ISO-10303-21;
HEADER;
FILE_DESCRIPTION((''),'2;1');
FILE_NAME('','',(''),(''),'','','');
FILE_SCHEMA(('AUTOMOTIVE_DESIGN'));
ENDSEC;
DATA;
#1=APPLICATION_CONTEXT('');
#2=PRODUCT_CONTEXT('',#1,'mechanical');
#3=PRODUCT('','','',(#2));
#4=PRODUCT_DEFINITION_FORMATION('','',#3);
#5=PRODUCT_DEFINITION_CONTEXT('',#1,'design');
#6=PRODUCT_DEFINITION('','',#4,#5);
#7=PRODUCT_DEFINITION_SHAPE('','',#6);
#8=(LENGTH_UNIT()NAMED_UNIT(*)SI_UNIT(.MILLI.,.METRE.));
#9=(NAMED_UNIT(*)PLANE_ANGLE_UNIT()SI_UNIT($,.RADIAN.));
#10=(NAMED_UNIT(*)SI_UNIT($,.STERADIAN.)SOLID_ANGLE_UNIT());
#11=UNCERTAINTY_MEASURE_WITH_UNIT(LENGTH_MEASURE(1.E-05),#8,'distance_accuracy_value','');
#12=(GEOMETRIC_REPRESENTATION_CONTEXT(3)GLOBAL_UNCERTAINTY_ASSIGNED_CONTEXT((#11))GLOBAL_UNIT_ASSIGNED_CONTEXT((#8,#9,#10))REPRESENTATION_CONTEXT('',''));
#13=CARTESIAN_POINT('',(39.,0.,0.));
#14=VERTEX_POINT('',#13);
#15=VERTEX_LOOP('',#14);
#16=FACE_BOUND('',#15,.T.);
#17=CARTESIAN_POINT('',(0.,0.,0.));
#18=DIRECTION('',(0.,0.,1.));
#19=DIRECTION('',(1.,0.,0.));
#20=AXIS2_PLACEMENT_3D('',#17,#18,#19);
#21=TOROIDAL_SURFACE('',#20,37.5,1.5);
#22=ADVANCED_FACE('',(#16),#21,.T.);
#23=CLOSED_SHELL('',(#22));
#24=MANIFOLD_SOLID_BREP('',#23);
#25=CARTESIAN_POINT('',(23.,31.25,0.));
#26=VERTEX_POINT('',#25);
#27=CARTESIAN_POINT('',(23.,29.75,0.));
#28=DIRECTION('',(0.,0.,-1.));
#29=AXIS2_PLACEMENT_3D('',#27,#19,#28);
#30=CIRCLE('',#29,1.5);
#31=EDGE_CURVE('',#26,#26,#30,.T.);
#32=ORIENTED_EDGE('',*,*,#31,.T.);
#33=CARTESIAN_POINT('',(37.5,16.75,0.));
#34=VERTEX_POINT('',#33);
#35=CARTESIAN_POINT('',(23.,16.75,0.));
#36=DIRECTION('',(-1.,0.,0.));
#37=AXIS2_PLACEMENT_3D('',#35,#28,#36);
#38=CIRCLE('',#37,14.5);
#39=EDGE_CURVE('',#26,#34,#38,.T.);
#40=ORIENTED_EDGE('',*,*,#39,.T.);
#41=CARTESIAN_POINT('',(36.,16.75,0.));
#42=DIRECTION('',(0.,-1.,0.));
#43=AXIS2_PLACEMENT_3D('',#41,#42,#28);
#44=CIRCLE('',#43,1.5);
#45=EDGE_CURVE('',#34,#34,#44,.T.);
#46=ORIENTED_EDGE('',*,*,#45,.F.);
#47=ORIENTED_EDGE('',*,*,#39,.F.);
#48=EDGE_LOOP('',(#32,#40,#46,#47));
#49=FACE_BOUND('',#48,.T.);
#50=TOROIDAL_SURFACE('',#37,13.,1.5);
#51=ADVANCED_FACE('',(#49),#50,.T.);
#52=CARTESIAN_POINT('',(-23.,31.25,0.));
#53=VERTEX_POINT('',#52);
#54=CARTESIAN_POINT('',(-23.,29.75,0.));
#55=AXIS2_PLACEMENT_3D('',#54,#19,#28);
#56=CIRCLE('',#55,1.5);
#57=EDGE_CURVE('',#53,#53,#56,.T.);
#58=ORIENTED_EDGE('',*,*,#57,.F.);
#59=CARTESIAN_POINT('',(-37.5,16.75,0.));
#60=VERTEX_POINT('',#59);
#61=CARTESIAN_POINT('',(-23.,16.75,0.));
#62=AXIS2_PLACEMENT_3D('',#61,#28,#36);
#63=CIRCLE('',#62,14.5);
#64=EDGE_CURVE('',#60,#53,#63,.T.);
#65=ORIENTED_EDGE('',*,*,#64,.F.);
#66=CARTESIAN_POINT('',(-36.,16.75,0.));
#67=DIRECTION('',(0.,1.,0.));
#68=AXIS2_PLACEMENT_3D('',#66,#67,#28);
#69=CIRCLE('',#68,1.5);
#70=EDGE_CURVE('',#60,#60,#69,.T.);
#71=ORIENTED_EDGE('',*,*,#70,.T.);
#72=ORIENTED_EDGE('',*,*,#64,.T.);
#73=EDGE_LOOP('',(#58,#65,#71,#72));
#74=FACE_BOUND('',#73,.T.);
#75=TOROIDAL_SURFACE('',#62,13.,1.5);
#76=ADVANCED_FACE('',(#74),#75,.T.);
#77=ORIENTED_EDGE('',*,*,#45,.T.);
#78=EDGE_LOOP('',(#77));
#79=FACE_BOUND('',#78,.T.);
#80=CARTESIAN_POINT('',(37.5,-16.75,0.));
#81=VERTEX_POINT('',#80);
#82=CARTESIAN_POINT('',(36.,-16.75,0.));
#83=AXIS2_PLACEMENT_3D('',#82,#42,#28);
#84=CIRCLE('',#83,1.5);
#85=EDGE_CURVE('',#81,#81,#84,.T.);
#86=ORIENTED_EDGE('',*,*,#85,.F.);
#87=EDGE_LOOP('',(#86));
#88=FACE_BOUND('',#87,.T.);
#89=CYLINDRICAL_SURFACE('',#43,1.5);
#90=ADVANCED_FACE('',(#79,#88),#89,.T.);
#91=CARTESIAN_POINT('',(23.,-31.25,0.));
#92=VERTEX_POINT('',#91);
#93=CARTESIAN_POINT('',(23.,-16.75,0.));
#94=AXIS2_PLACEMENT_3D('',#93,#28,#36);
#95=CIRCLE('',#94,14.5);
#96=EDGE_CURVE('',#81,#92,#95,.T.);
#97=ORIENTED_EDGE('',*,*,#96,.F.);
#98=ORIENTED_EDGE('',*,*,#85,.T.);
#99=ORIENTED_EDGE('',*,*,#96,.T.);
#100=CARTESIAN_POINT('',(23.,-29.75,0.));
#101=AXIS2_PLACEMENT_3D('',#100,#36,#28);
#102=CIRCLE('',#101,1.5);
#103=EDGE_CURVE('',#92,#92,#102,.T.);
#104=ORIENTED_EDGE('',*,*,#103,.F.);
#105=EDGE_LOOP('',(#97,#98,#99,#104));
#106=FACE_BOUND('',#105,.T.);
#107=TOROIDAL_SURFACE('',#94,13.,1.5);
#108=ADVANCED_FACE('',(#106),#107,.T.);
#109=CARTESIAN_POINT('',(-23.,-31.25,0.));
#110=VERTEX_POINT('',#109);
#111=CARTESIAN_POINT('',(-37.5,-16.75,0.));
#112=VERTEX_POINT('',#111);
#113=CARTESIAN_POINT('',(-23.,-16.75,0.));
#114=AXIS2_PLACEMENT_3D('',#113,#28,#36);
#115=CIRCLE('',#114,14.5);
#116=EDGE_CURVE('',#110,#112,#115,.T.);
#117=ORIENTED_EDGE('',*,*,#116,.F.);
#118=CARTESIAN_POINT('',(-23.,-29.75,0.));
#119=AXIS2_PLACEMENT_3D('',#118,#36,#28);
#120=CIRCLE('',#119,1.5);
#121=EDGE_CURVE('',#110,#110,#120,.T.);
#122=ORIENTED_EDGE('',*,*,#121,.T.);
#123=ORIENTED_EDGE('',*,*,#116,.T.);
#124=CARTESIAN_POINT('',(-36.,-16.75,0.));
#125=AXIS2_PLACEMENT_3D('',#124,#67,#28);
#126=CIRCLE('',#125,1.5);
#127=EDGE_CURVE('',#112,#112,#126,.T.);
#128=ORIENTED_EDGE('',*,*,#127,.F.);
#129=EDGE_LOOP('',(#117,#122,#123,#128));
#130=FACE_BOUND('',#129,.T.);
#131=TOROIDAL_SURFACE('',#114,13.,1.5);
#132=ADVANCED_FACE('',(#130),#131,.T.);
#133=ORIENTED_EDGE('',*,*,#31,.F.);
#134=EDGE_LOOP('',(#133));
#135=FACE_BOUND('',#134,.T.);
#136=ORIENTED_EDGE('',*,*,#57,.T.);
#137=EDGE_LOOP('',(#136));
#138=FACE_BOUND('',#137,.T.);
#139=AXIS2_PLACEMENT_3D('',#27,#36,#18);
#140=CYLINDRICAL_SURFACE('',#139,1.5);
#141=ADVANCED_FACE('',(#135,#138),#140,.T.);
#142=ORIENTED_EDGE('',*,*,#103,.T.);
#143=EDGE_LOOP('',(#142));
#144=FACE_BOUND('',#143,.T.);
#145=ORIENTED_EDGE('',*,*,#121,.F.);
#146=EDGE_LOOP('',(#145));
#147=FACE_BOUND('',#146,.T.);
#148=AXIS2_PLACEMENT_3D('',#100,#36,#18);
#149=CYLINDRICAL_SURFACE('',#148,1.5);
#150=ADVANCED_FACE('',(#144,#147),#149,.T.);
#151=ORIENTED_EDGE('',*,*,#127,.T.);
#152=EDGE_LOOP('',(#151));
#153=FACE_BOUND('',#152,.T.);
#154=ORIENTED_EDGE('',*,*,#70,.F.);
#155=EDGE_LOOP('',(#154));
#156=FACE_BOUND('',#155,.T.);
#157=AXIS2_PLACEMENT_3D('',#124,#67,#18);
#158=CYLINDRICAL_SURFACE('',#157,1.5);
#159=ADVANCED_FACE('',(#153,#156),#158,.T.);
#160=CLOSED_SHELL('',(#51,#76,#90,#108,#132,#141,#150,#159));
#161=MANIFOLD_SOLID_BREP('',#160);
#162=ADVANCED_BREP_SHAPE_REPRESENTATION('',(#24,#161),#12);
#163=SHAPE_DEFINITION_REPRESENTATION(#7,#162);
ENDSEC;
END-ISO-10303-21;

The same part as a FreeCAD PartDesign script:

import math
import FreeCAD as App
import Part
import Sketcher
from FreeCAD import Vector
Q = App.Units.Quantity

doc = App.newDocument("Part")
body = doc.addObject("PartDesign::Body", "Body")

sketch1 = body.newObject("Sketcher::SketchObject", "Sketch")
sketch1.AttachmentSupport = (doc.getObject("YZ_Plane"), [""])
sketch1.MapMode = "FlatFace"
sketch1.addGeometry(Part.Circle(Vector(37.5, 0, 0), Vector(0, 0, 1), 1.5), False)
sketch1.addConstraint(Sketcher.Constraint("PointOnObject", 0, 3, -1))
sketch1.addConstraint(Sketcher.Constraint("Diameter", 0, Q("3 mm")))
sketch1.addConstraint(Sketcher.Constraint("DistanceX", -1, 1, 0, 3, Q("37.5 mm")))
revolution = body.newObject("PartDesign::Revolution", "Revolution")
revolution.Profile = sketch1
revolution.ReferenceAxis = (sketch1, ["V_Axis"])
revolution.Angle = 360
body2 = doc.addObject("PartDesign::Body", "Body001")

sketch2 = body2.newObject("Sketcher::SketchObject", "Sketch001")
sketch2.AttachmentSupport = (doc.getObject("YZ_Plane001"), [""])
sketch2.MapMode = "FlatFace"
sketch2.addGeometry(Part.Circle(Vector(29.75, 0, 0), Vector(0, 0, 1), 1.5), False)
sketch2.addConstraint(Sketcher.Constraint("PointOnObject", 0, 3, -1))
sketch2.addConstraint(Sketcher.Constraint("Diameter", 0, Q("3 mm")))
sketch2.addConstraint(Sketcher.Constraint("DistanceX", -1, 1, 0, 3, Q("29.75 mm")))

sketch3 = body2.newObject("Sketcher::SketchObject", "Sketch002")
sketch3.AttachmentSupport = (doc.getObject("XY_Plane001"), [""])
sketch3.MapMode = "FlatFace"
sketch3.addGeometry(Part.LineSegment(Vector(-23, 29.75, 0), Vector(23, 29.75, 0)), False)
sketch3.addGeometry(Part.ArcOfCircle(Part.Circle(Vector(23, 16.75, 0), Vector(0, 0, 1), 13), math.radians(0), math.radians(90)), False)
sketch3.addGeometry(Part.LineSegment(Vector(36, 16.75, 0), Vector(36, -16.75, 0)), False)
sketch3.addGeometry(Part.ArcOfCircle(Part.Circle(Vector(23, -16.75, 0), Vector(0, 0, 1), 13), math.radians(-90), math.radians(0)), False)
sketch3.addGeometry(Part.LineSegment(Vector(23, -29.75, 0), Vector(-23, -29.75, 0)), False)
sketch3.addGeometry(Part.ArcOfCircle(Part.Circle(Vector(-23, -16.75, 0), Vector(0, 0, 1), 13), math.radians(-180), math.radians(-90)), False)
sketch3.addGeometry(Part.LineSegment(Vector(-36, -16.75, 0), Vector(-36, 16.75, 0)), False)
sketch3.addGeometry(Part.ArcOfCircle(Part.Circle(Vector(-23, 16.75, 0), Vector(0, 0, 1), 13), math.radians(90), math.radians(180)), False)
sketch3.addConstraint(Sketcher.Constraint("Tangent", 0, 2, 1, 2))
sketch3.addConstraint(Sketcher.Constraint("Tangent", 1, 1, 2, 1))
sketch3.addConstraint(Sketcher.Constraint("Tangent", 2, 2, 3, 2))
sketch3.addConstraint(Sketcher.Constraint("Tangent", 3, 1, 4, 1))
sketch3.addConstraint(Sketcher.Constraint("Tangent", 4, 2, 5, 2))
sketch3.addConstraint(Sketcher.Constraint("Tangent", 5, 1, 6, 1))
sketch3.addConstraint(Sketcher.Constraint("Tangent", 6, 2, 7, 2))
sketch3.addConstraint(Sketcher.Constraint("Tangent", 7, 1, 0, 1))
sketch3.addConstraint(Sketcher.Constraint("Horizontal", 0))
sketch3.addConstraint(Sketcher.Constraint("Vertical", 2))
sketch3.addConstraint(Sketcher.Constraint("Horizontal", 4))
sketch3.addConstraint(Sketcher.Constraint("Vertical", 6))
sketch3.addConstraint(Sketcher.Constraint("Equal", 1, 3))
sketch3.addConstraint(Sketcher.Constraint("Equal", 3, 5))
sketch3.addConstraint(Sketcher.Constraint("Equal", 5, 7))
sketch3.addConstraint(Sketcher.Constraint("Symmetric", 1, 3, 5, 3, -1, 1))
sketch3.addConstraint(Sketcher.Constraint("Radius", 1, Q("13 mm")))
sketch3.addConstraint(Sketcher.Constraint("DistanceX", 0, 1, 0, 2, Q("46 mm")))
sketch3.addConstraint(Sketcher.Constraint("DistanceY", 2, 2, 2, 1, Q("33.5 mm")))
doc.recompute()

additivepipe = body2.newObject("PartDesign::AdditivePipe", "AdditivePipe")
additivepipe.Profile = sketch2
additivepipe.Spine = (sketch3, ["Edge1", "Edge2", "Edge3", "Edge4", "Edge5", "Edge6", "Edge7", "Edge8"])

doc.recompute()
